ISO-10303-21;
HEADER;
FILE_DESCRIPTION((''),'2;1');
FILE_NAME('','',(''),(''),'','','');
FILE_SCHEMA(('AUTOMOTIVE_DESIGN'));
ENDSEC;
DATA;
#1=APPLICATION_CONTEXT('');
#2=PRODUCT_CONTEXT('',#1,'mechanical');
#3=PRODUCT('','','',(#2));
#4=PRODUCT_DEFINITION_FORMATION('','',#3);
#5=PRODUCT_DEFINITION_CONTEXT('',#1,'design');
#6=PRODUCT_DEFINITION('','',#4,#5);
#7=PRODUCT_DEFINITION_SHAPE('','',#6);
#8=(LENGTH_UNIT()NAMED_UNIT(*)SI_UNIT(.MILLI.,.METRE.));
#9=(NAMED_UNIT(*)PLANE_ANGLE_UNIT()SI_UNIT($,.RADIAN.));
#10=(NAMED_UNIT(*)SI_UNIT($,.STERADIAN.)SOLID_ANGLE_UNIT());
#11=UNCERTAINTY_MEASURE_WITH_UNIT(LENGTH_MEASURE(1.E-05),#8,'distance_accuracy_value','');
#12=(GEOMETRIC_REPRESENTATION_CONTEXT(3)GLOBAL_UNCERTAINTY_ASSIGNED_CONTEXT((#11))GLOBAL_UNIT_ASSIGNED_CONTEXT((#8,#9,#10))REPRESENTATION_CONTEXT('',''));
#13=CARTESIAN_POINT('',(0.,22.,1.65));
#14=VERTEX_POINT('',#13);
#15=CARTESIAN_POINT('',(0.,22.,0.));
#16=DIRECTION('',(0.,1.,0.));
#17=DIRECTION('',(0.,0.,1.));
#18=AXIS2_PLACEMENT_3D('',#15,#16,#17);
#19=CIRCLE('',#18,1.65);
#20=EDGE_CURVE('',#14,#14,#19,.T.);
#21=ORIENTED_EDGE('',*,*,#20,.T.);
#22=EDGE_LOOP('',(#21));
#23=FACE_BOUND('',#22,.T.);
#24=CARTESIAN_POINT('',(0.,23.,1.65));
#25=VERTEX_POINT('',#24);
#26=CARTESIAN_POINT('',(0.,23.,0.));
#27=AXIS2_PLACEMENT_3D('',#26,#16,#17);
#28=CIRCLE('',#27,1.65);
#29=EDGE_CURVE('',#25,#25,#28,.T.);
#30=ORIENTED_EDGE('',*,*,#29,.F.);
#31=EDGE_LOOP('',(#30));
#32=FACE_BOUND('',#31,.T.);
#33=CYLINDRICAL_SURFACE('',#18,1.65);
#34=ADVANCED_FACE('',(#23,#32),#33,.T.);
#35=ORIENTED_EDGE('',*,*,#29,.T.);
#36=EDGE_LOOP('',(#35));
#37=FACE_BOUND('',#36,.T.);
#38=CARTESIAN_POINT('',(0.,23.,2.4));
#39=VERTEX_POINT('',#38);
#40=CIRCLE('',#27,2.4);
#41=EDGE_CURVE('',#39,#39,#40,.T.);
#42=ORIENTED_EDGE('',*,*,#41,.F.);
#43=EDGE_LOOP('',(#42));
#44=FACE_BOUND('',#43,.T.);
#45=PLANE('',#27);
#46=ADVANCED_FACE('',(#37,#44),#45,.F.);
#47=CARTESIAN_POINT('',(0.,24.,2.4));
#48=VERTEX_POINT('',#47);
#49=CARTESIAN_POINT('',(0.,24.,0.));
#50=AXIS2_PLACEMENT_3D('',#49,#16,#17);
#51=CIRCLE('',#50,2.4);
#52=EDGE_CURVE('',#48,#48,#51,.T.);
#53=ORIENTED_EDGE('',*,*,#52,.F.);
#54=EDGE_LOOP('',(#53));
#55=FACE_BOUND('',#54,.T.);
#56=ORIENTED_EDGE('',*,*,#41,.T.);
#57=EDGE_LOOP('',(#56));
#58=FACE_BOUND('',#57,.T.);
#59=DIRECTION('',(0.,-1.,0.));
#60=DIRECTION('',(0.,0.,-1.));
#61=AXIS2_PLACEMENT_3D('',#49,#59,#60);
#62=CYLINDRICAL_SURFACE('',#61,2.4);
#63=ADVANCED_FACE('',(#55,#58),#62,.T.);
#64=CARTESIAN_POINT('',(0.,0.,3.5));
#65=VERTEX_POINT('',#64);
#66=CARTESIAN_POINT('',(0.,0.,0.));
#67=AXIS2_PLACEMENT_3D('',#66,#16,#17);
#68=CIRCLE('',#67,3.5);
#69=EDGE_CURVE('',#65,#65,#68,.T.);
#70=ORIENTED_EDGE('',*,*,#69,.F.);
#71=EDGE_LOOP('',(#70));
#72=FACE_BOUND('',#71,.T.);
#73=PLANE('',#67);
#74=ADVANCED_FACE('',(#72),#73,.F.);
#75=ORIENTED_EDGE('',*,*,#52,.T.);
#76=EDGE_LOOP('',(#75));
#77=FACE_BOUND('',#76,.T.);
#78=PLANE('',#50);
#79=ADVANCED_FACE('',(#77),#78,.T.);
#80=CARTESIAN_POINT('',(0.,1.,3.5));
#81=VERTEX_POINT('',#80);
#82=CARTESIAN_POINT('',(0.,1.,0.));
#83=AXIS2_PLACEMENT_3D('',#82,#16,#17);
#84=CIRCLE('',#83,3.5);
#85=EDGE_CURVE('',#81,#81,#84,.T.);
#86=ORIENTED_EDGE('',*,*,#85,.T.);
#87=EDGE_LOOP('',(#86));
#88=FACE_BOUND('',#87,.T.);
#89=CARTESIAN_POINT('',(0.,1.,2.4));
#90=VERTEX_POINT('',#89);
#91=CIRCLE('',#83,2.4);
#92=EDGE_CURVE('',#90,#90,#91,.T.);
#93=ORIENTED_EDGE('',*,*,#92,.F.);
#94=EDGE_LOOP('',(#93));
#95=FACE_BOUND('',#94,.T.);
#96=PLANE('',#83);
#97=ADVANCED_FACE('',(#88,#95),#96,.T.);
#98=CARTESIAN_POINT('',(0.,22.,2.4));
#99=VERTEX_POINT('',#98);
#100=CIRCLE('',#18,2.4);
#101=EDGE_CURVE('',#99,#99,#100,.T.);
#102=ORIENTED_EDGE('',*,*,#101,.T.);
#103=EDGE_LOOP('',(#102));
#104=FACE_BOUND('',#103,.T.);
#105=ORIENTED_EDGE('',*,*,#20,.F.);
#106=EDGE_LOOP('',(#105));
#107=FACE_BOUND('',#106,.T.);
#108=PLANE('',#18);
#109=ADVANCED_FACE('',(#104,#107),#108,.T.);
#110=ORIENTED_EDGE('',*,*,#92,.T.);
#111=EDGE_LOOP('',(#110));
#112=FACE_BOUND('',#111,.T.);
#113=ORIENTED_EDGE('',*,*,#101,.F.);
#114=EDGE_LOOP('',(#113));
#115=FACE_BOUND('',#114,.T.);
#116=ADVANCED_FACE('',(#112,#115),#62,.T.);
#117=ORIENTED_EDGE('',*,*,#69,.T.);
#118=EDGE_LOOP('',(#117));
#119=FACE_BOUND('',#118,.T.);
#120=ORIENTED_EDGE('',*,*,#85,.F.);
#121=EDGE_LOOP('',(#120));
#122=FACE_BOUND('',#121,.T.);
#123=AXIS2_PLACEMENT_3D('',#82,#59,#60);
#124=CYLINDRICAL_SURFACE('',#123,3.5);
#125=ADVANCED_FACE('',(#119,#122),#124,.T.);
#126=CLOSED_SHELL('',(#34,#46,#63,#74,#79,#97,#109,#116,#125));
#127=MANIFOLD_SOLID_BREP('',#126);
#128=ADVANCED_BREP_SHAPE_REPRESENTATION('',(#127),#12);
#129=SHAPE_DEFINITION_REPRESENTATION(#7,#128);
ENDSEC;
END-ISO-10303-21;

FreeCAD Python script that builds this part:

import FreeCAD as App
import Part
import Sketcher

doc = App.newDocument("Part")
body = doc.addObject("PartDesign::Body", "Body")

sketch1 = doc.addObject("Sketcher::SketchObject", "Sketch")
body.addObject(sketch1)
sketch1.AttachmentSupport = (doc.XZ_Plane, [""])
sketch1.MapMode = "FlatFace"
sketch1.addGeometry([
    Part.Circle(App.Vector(0, 0, 0), App.Vector(0, 0, 1), 3.5),
    Part.Circle(App.Vector(0, 0, 0), App.Vector(0, 0, 1), 2.4),
], False)
sketch1.addConstraint([
    Sketcher.Constraint("Coincident", 0, 3, -1, 1),
    Sketcher.Constraint("Coincident", 1, 3, -1, 1),
    Sketcher.Constraint("Diameter", 0, 7.0),
    Sketcher.Constraint("Diameter", 1, 4.8),
])
pad1 = doc.addObject("PartDesign::Pad", "Pad")
body.addObject(pad1)
pad1.Profile = sketch1
pad1.Length = 1
pad1.Reversed = True

sketch2 = doc.addObject("Sketcher::SketchObject", "Sketch001")
body.addObject(sketch2)
sketch2.AttachmentSupport = (doc.XZ_Plane, [""])
sketch2.MapMode = "FlatFace"
sketch2.addGeometry(Part.Circle(App.Vector(0, 0, 0), App.Vector(0, 0, 1), 2.4), False)
sketch2.addConstraint([
    Sketcher.Constraint("Coincident", 0, 3, -1, 1),
    Sketcher.Constraint("Diameter", 0, 4.8),
])
pad2 = doc.addObject("PartDesign::Pad", "Pad001")
body.addObject(pad2)
pad2.Profile = sketch2
pad2.Length = 24
pad2.Reversed = True

sketch3 = doc.addObject("Sketcher::SketchObject", "Sketch002")
body.addObject(sketch3)
sketch3.AttachmentSupport = (doc.XZ_Plane, [""])
sketch3.MapMode = "FlatFace"
sketch3.AttachmentOffset = App.Placement(App.Vector(0, 0, -22), App.Rotation())
sketch3.addGeometry([
    Part.Circle(App.Vector(0, 0, 0), App.Vector(0, 0, 1), 2.4),
    Part.Circle(App.Vector(0, 0, 0), App.Vector(0, 0, 1), 1.6),
], False)
sketch3.addConstraint([
    Sketcher.Constraint("Coincident", 0, 3, -1, 1),
    Sketcher.Constraint("Coincident", 1, 3, -1, 1),
    Sketcher.Constraint("Diameter", 0, 4.8),
    Sketcher.Constraint("Diameter", 1, 3.3),
])
pocket1 = doc.addObject("PartDesign::Pocket", "Pocket")
body.addObject(pocket1)
pocket1.Profile = sketch3
pocket1.Length = 1

doc.recompute()
